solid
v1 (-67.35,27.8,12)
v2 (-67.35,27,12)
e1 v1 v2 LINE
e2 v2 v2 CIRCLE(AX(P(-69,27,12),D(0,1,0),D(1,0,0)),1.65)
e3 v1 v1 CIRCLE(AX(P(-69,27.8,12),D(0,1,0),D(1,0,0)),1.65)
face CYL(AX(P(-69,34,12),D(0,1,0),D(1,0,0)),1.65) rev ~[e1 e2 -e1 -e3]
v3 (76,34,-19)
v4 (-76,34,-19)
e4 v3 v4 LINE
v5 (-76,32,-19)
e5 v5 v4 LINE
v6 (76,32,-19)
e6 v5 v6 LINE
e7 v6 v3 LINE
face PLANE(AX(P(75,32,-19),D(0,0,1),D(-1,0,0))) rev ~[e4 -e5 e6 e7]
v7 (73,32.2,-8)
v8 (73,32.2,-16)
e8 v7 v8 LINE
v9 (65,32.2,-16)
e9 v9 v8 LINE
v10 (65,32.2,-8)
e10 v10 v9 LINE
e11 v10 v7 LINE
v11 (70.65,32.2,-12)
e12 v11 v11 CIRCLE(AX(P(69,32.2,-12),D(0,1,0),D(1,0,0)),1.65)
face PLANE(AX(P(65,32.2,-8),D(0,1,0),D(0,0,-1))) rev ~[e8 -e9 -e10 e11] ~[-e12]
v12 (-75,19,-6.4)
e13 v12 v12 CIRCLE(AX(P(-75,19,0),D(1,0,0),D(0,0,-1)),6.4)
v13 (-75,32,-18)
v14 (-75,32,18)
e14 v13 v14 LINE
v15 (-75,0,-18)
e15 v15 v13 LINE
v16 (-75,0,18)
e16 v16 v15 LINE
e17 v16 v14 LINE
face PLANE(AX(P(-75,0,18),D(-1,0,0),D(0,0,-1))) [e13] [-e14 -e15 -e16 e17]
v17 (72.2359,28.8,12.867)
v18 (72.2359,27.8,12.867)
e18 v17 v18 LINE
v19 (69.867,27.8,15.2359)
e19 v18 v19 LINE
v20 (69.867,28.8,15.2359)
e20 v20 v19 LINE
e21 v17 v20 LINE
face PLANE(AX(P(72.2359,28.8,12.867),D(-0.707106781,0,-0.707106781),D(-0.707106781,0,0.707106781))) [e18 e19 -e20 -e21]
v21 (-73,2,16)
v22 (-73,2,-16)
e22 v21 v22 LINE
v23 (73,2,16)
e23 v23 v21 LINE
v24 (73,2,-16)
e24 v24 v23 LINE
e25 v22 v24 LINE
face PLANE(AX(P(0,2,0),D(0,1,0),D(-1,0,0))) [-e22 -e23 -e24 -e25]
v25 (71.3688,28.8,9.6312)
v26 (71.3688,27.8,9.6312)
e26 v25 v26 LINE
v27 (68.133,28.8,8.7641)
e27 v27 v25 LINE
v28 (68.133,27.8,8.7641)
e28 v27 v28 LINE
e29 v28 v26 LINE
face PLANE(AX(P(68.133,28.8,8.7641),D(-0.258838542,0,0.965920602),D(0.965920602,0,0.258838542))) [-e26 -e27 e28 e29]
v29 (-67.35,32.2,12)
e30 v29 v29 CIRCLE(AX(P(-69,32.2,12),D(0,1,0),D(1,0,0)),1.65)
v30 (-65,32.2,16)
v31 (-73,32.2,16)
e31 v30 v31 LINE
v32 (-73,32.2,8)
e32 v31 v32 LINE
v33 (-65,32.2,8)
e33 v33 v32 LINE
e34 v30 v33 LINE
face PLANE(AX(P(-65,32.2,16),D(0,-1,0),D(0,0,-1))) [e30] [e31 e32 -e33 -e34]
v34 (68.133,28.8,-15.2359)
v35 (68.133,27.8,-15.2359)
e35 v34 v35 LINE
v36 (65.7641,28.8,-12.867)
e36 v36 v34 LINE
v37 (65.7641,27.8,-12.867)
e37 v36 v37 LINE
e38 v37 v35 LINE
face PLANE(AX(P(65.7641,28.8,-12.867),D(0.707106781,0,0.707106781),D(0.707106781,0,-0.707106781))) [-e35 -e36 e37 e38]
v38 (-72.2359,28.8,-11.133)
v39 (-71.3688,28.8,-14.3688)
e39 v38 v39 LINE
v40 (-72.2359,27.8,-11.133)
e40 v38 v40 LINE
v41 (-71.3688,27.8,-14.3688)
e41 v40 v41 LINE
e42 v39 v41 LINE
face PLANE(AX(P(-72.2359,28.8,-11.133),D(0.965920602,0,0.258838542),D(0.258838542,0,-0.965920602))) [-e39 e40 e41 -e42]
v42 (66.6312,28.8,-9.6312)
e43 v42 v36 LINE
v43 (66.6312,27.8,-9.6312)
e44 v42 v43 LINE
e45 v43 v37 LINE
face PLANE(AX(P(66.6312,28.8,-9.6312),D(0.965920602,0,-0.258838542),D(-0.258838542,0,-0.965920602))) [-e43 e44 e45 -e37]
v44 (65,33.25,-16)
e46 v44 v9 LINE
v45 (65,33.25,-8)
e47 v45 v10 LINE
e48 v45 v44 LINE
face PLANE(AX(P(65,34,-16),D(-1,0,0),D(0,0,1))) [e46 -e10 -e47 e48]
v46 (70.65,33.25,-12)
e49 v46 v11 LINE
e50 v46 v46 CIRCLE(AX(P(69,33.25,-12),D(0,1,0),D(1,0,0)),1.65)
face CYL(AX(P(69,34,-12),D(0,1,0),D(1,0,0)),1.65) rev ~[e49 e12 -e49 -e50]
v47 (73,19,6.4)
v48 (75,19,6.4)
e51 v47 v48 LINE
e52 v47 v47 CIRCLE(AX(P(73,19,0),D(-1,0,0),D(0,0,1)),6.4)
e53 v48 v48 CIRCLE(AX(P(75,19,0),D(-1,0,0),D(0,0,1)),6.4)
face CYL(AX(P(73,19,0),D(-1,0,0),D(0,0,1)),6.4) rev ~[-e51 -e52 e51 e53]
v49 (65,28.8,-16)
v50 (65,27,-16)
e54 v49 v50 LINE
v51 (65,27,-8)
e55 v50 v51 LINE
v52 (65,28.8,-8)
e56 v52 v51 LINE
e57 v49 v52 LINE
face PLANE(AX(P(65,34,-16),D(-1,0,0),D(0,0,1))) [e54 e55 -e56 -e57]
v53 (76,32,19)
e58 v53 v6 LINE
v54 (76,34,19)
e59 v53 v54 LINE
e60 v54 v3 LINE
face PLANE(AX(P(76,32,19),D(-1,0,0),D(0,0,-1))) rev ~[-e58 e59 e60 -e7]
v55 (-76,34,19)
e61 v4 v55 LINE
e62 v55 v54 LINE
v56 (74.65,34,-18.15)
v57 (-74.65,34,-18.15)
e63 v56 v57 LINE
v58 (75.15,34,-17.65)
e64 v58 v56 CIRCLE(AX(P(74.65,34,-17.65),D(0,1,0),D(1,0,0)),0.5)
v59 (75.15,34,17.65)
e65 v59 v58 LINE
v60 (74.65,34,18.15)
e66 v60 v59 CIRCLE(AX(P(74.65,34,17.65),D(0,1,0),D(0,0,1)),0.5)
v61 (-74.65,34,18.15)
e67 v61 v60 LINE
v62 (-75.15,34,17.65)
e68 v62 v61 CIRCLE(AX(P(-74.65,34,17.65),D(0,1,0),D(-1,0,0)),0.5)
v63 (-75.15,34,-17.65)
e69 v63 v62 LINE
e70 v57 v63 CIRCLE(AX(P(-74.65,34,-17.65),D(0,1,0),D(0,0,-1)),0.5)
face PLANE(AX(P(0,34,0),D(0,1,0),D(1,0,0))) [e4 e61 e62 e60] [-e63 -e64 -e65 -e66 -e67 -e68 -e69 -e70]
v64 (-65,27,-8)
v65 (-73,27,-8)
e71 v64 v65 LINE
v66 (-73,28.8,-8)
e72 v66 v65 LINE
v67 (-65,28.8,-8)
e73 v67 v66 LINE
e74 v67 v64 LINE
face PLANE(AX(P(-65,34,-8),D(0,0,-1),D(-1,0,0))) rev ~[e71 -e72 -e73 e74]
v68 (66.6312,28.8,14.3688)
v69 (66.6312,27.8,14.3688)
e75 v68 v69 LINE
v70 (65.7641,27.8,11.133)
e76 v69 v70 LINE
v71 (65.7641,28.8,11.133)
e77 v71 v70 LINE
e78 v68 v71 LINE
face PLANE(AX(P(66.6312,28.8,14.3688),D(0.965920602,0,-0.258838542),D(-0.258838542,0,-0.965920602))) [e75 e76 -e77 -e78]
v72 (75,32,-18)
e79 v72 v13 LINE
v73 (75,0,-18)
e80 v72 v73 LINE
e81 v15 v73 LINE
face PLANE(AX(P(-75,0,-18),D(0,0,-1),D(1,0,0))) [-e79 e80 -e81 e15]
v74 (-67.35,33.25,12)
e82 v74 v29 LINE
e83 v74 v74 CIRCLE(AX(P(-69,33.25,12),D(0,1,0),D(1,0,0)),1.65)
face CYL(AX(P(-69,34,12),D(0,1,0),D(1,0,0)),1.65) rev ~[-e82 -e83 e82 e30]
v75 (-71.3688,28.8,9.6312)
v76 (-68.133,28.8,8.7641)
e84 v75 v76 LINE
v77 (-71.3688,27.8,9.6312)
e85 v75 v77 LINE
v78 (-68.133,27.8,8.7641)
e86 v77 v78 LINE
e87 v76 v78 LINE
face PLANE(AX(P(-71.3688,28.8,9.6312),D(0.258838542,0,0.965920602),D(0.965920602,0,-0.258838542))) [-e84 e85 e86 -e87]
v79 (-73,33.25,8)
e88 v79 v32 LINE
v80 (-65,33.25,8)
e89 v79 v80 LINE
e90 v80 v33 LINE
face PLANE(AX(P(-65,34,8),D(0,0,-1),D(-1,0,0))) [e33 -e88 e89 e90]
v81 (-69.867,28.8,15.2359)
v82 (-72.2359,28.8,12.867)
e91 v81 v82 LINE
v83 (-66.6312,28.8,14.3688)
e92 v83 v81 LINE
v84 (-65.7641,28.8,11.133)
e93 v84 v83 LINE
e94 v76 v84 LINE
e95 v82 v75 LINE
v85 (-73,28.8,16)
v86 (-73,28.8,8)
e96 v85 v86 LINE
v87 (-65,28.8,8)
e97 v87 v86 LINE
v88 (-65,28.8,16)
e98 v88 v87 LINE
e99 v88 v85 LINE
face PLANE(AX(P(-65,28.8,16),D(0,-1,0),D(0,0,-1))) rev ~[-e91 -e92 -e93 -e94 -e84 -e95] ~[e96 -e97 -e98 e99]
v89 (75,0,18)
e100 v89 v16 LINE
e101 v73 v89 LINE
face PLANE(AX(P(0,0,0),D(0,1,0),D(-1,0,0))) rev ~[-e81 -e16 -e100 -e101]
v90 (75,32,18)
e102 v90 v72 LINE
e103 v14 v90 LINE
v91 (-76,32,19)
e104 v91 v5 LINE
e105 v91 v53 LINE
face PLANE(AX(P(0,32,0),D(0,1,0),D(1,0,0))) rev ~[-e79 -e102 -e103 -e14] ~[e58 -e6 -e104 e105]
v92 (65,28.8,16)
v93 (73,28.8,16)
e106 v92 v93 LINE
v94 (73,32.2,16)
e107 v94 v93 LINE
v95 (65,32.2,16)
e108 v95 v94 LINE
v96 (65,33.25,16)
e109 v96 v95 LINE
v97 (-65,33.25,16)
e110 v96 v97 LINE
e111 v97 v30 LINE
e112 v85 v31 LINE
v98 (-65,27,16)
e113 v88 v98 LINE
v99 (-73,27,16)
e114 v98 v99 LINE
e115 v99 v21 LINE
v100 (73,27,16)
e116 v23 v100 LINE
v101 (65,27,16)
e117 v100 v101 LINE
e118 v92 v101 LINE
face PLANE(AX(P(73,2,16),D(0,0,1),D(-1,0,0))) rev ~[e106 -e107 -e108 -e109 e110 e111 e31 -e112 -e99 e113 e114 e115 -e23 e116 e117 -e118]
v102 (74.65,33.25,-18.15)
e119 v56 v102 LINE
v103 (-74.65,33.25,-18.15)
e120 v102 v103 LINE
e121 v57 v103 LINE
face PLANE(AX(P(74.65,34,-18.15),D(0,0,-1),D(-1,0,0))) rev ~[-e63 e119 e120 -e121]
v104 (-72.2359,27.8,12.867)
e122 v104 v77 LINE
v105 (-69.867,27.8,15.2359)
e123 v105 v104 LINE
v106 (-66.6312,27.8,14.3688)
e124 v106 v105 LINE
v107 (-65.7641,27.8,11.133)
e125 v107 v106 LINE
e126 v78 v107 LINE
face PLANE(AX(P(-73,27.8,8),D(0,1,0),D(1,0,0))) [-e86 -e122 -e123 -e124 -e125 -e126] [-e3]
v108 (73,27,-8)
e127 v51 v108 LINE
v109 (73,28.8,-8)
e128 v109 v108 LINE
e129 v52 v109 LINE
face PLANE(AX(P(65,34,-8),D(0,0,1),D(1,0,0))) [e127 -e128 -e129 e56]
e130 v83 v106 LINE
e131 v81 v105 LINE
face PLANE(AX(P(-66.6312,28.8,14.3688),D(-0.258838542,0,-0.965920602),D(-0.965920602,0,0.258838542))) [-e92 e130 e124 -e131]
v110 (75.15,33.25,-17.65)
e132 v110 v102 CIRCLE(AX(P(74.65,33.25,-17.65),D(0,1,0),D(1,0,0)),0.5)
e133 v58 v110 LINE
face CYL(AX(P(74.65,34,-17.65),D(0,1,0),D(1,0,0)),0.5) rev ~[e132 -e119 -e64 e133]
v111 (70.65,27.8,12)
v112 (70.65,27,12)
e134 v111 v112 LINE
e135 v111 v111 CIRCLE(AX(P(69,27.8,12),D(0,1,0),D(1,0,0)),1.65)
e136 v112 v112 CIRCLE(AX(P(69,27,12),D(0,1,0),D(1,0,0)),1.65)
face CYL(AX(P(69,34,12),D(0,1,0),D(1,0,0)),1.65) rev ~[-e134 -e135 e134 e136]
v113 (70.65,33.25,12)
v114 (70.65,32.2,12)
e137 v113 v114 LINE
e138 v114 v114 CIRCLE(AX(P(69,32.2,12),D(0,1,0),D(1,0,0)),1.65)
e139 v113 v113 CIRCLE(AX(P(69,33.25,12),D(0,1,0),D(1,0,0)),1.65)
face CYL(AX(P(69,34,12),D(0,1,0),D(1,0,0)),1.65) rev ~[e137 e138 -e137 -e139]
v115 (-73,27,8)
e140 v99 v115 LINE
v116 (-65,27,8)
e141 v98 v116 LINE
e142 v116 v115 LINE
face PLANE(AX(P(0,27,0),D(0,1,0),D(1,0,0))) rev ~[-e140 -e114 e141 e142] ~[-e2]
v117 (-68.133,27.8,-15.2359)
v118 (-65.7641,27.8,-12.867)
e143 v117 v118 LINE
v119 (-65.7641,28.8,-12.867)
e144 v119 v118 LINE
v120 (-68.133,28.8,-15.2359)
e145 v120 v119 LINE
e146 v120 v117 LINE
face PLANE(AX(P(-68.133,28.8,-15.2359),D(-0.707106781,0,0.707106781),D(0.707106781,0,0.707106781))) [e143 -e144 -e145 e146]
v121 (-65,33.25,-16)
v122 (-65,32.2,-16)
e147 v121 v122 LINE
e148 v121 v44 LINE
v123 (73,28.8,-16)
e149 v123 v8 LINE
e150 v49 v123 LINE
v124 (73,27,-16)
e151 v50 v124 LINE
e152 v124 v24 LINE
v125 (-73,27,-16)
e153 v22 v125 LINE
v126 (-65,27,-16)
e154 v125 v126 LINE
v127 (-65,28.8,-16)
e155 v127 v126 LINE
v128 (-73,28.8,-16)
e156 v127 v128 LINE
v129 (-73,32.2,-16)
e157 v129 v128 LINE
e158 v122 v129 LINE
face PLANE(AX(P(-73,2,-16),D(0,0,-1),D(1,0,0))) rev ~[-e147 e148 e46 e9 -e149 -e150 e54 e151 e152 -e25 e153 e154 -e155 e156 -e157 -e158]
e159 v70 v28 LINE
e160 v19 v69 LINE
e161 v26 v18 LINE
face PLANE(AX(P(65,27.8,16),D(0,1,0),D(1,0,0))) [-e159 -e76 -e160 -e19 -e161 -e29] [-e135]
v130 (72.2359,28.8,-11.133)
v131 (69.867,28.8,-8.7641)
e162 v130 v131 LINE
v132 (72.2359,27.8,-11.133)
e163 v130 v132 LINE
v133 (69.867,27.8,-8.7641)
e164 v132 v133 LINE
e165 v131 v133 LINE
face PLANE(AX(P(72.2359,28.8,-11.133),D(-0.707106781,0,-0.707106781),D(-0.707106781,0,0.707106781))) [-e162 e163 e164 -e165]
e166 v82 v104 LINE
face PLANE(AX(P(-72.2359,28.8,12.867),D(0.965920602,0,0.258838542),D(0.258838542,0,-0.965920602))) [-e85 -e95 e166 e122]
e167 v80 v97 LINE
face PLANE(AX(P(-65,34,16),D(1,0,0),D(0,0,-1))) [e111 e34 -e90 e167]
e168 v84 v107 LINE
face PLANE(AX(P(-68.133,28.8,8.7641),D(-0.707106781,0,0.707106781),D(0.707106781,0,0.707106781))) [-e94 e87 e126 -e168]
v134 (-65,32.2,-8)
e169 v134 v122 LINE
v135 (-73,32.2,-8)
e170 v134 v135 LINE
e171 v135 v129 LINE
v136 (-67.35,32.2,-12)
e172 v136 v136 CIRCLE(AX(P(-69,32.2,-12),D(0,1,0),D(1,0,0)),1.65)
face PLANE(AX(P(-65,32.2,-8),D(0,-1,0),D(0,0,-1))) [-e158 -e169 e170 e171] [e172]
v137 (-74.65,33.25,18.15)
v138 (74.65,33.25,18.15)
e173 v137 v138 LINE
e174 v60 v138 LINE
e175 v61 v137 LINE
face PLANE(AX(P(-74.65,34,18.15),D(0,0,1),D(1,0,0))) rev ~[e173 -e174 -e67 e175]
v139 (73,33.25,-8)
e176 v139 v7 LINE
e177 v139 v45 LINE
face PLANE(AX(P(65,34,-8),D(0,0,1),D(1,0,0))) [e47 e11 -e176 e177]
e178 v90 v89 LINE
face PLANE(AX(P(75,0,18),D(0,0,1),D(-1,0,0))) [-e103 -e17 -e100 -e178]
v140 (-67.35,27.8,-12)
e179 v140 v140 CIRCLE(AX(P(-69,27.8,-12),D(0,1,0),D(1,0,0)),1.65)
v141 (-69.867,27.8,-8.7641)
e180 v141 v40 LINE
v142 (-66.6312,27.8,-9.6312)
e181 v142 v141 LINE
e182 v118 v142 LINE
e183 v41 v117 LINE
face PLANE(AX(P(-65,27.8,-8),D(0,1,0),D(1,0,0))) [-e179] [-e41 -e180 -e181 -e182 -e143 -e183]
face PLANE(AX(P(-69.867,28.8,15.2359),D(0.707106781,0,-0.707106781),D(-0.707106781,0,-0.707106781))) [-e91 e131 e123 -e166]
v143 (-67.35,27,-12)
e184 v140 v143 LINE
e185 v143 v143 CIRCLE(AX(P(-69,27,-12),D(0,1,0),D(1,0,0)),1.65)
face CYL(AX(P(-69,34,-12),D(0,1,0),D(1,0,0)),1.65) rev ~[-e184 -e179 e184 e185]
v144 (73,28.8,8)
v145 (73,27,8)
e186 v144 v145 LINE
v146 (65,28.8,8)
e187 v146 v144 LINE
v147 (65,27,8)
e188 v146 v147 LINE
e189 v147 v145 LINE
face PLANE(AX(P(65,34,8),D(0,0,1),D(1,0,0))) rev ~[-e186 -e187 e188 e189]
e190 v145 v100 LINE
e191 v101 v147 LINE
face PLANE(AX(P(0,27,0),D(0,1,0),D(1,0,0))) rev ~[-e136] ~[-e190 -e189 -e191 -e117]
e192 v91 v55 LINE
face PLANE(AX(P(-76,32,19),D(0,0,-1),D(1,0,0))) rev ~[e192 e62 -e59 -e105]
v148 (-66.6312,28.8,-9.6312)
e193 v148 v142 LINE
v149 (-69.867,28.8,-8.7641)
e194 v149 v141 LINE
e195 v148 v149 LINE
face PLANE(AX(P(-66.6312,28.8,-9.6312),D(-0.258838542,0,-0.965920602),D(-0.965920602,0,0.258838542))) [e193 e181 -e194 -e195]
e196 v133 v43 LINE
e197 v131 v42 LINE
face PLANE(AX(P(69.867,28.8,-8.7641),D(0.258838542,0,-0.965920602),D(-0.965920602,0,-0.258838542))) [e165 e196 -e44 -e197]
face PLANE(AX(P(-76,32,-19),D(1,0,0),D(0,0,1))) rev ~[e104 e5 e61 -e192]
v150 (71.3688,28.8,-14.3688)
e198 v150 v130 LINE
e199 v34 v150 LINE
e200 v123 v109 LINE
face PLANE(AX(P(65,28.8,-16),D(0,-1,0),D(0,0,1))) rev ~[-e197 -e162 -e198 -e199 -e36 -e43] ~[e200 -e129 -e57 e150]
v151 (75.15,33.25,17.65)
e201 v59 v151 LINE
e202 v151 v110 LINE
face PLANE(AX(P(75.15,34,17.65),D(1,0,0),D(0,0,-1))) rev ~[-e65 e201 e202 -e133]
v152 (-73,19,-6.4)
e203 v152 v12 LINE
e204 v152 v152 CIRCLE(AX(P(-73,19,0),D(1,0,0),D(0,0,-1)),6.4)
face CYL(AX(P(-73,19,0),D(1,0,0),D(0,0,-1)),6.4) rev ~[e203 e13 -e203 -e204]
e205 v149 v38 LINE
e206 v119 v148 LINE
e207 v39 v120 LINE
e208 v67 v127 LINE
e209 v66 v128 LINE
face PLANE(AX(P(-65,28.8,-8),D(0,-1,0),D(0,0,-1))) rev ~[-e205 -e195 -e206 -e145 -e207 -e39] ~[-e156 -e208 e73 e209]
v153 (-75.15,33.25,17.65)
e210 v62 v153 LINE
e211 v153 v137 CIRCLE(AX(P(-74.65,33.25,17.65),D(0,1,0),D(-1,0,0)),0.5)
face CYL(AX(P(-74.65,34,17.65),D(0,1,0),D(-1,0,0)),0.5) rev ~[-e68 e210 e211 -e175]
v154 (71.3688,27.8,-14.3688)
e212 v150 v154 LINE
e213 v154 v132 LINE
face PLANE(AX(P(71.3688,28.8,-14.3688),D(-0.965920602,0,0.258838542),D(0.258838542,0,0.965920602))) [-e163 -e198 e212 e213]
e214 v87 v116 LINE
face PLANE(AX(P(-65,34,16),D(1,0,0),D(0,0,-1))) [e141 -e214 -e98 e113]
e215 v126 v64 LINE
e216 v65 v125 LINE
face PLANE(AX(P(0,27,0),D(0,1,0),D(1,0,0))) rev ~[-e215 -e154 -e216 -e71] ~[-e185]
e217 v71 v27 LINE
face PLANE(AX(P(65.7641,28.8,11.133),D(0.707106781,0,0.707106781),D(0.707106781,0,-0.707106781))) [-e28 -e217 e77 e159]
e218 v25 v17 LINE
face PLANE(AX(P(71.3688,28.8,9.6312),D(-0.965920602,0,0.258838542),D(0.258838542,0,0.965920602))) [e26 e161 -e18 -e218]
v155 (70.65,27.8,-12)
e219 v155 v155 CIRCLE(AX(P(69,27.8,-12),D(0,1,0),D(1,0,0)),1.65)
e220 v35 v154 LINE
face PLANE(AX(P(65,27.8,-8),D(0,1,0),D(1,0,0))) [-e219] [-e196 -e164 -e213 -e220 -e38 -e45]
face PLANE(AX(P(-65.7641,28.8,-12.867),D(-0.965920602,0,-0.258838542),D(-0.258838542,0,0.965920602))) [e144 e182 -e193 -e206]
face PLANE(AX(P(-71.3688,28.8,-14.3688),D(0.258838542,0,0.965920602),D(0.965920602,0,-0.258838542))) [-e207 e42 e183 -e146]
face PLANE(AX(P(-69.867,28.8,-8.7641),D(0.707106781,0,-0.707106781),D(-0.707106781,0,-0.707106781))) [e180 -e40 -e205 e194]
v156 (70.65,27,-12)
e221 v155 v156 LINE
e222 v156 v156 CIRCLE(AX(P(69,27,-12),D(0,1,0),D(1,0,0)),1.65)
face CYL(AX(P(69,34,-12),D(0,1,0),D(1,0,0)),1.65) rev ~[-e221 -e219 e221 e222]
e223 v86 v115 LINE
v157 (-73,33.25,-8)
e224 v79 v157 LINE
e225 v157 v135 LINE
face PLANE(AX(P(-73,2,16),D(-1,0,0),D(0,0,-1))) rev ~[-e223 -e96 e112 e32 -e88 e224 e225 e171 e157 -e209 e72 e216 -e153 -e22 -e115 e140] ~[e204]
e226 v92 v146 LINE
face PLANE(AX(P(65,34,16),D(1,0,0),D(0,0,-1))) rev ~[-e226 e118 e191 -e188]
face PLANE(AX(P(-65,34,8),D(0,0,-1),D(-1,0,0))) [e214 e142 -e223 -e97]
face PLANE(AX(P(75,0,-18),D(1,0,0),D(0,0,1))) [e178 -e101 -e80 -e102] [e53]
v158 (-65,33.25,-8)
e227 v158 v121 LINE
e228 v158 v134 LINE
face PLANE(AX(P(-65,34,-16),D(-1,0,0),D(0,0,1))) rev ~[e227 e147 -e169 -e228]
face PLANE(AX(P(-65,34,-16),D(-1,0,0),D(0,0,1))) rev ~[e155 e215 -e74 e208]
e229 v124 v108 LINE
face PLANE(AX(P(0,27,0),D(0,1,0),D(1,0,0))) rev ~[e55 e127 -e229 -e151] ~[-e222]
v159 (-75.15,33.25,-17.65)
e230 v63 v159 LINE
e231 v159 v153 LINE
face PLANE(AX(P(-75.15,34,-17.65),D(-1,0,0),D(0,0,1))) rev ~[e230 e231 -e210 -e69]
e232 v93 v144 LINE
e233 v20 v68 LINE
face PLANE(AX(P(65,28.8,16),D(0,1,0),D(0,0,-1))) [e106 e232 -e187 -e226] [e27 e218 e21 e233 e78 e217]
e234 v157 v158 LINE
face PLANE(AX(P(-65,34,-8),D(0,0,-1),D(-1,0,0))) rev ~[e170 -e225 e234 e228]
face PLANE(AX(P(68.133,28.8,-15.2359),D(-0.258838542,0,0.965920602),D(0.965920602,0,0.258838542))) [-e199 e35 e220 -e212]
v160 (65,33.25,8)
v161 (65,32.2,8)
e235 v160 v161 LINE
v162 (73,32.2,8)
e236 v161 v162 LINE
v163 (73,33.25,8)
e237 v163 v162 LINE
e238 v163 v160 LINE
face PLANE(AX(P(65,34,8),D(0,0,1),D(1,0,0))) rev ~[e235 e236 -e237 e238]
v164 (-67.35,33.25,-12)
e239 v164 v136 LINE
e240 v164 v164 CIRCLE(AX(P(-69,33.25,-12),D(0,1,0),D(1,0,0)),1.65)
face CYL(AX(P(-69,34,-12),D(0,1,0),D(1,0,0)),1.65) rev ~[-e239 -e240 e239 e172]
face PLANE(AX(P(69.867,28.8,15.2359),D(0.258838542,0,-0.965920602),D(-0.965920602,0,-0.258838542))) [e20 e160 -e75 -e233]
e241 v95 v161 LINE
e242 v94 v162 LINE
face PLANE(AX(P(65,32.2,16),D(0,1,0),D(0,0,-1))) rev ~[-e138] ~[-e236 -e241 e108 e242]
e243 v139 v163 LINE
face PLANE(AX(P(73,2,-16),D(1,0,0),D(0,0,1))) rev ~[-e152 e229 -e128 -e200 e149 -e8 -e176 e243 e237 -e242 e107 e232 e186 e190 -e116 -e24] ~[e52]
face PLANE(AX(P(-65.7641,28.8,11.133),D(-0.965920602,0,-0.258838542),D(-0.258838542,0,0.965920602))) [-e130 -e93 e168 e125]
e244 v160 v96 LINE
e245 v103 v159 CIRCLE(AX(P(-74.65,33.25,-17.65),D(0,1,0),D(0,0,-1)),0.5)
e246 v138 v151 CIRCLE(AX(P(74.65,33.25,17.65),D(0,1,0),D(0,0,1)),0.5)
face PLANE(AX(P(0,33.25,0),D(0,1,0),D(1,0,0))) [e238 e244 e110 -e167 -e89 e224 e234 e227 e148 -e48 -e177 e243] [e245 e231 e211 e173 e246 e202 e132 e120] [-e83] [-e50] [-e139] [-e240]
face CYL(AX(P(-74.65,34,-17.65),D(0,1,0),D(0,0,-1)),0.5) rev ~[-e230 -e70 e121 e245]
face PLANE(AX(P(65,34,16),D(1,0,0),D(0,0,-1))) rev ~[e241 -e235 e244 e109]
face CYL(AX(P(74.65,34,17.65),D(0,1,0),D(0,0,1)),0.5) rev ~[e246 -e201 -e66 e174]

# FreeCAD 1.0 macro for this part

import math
import FreeCAD as App
import Part
import Sketcher
Q = App.Units.Quantity

doc = App.newDocument("Part")
body = doc.addObject("PartDesign::Body", "Body")

sketch1 = body.newObject("Sketcher::SketchObject", "Sketch")
sketch1.AttachmentSupport = (doc.getObject("XZ_Plane"), [""])
sketch1.MapMode = "FlatFace"
sketch1.addGeometry(Part.LineSegment(App.Vector(75, -18, 0), App.Vector(-75, -18, 0)), False)
sketch1.addGeometry(Part.LineSegment(App.Vector(-75, -18, 0), App.Vector(-75, 18, 0)), False)
sketch1.addGeometry(Part.LineSegment(App.Vector(-75, 18, 0), App.Vector(75, 18, 0)), False)
sketch1.addGeometry(Part.LineSegment(App.Vector(75, 18, 0), App.Vector(75, -18, 0)), False)
sketch1.addConstraint(Sketcher.Constraint("Coincident", 0, 2, 1, 1))
sketch1.addConstraint(Sketcher.Constraint("Coincident", 1, 2, 2, 1))
sketch1.addConstraint(Sketcher.Constraint("Coincident", 2, 2, 3, 1))
sketch1.addConstraint(Sketcher.Constraint("Coincident", 3, 2, 0, 1))
sketch1.addConstraint(Sketcher.Constraint("Horizontal", 0))
sketch1.addConstraint(Sketcher.Constraint("Vertical", 1))
sketch1.addConstraint(Sketcher.Constraint("Horizontal", 2))
sketch1.addConstraint(Sketcher.Constraint("Vertical", 3))
sketch1.addConstraint(Sketcher.Constraint("Symmetric", 0, 2, 2, 2, -1, 1))
sketch1.addConstraint(Sketcher.Constraint("DistanceX", 0, 2, 0, 1, 150.0))
sketch1.addConstraint(Sketcher.Constraint("DistanceY", 1, 1, 1, 2, 36.0))
pad1 = body.newObject("PartDesign::Pad", "Pad")
pad1.Profile = sketch1
pad1.Length = 2
pad1.Reversed = True

sketch2 = body.newObject("Sketcher::SketchObject", "Sketch001")
sketch2.AttachmentSupport = (doc.getObject("XZ_Plane"), [""])
sketch2.MapMode = "FlatFace"
sketch2.AttachmentOffset = App.Placement(App.Vector(0, 0, -2), App.Rotation())
sketch2.addGeometry(Part.LineSegment(App.Vector(75, 18, 0), App.Vector(75, -18, 0)), False)
sketch2.addGeometry(Part.LineSegment(App.Vector(75, -18, 0), App.Vector(-75, -18, 0)), False)
sketch2.addGeometry(Part.LineSegment(App.Vector(-75, -18, 0), App.Vector(-75, 18, 0)), False)
sketch2.addGeometry(Part.LineSegment(App.Vector(-75, 18, 0), App.Vector(75, 18, 0)), False)
sketch2.addGeometry(Part.LineSegment(App.Vector(73, -16, 0), App.Vector(73, 16, 0)), False)
sketch2.addGeometry(Part.LineSegment(App.Vector(73, 16, 0), App.Vector(-73, 16, 0)), False)
sketch2.addGeometry(Part.LineSegment(App.Vector(-73, 16, 0), App.Vector(-73, -16, 0)), False)
sketch2.addGeometry(Part.LineSegment(App.Vector(-73, -16, 0), App.Vector(73, -16, 0)), False)
sketch2.addConstraint(Sketcher.Constraint("Coincident", 0, 2, 1, 1))
sketch2.addConstraint(Sketcher.Constraint("Coincident", 1, 2, 2, 1))
sketch2.addConstraint(Sketcher.Constraint("Coincident", 2, 2, 3, 1))
sketch2.addConstraint(Sketcher.Constraint("Coincident", 3, 2, 0, 1))
sketch2.addConstraint(Sketcher.Constraint("Coincident", 4, 2, 5, 1))
sketch2.addConstraint(Sketcher.Constraint("Coincident", 5, 2, 6, 1))
sketch2.addConstraint(Sketcher.Constraint("Coincident", 6, 2, 7, 1))
sketch2.addConstraint(Sketcher.Constraint("Coincident", 7, 2, 4, 1))
sketch2.addConstraint(Sketcher.Constraint("Vertical", 0))
sketch2.addConstraint(Sketcher.Constraint("Horizontal", 1))
sketch2.addConstraint(Sketcher.Constraint("Vertical", 2))
sketch2.addConstraint(Sketcher.Constraint("Horizontal", 3))
sketch2.addConstraint(Sketcher.Constraint("Vertical", 4))
sketch2.addConstraint(Sketcher.Constraint("Horizontal", 5))
sketch2.addConstraint(Sketcher.Constraint("Vertical", 6))
sketch2.addConstraint(Sketcher.Constraint("Horizontal", 7))
sketch2.addConstraint(Sketcher.Constraint("Symmetric", 0, 2, 2, 2, -1, 1))
sketch2.addConstraint(Sketcher.Constraint("Symmetric", 4, 2, 6, 2, -1, 1))
sketch2.addConstraint(Sketcher.Constraint("DistanceX", 1, 2, 1, 1, 150.0))
sketch2.addConstraint(Sketcher.Constraint("DistanceX", 5, 2, 5, 1, 146.0))
sketch2.addConstraint(Sketcher.Constraint("DistanceY", 0, 2, 0, 1, 36.0))
sketch2.addConstraint(Sketcher.Constraint("DistanceY", 4, 1, 4, 2, 32.0))
pad2 = body.newObject("PartDesign::Pad", "Pad001")
pad2.Profile = sketch2
pad2.Length = 30
pad2.Reversed = True

sketch3 = body.newObject("Sketcher::SketchObject", "Sketch002")
sketch3.AttachmentSupport = (doc.getObject("YZ_Plane"), [""])
sketch3.MapMode = "FlatFace"
sketch3.AttachmentOffset = App.Placement(App.Vector(0, 0, -73), App.Rotation())
sketch3.addGeometry(Part.Circle(App.Vector(19, 0, 0), App.Vector(0, 0, 1), 6.4), False)
sketch3.addConstraint(Sketcher.Constraint("PointOnObject", 0, 3, -1))
sketch3.addConstraint(Sketcher.Constraint("Diameter", 0, 12.8))
sketch3.addConstraint(Sketcher.Constraint("DistanceX", -1, 1, 0, 3, 19.0))
pocket1 = body.newObject("PartDesign::Pocket", "Pocket")
pocket1.Profile = sketch3
pocket1.Length = 30

sketch4 = body.newObject("Sketcher::SketchObject", "Sketch003")
sketch4.AttachmentSupport = (doc.getObject("YZ_Plane"), [""])
sketch4.MapMode = "FlatFace"
sketch4.AttachmentOffset = App.Placement(App.Vector(0, 0, 73), App.Rotation())
sketch4.addGeometry(Part.Circle(App.Vector(19, 0, 0), App.Vector(0, 0, 1), 6.4), False)
sketch4.addConstraint(Sketcher.Constraint("PointOnObject", 0, 3, -1))
sketch4.addConstraint(Sketcher.Constraint("Diameter", 0, 12.8))
sketch4.addConstraint(Sketcher.Constraint("DistanceX", -1, 1, 0, 3, 19.0))
pocket2 = body.newObject("PartDesign::Pocket", "Pocket001")
pocket2.Profile = sketch4
pocket2.Length = 30
pocket2.Reversed = True

sketch5 = body.newObject("Sketcher::SketchObject", "Sketch004")
sketch5.AttachmentSupport = (doc.getObject("XZ_Plane"), [""])
sketch5.MapMode = "FlatFace"
sketch5.AttachmentOffset = App.Placement(App.Vector(0, 0, -32), App.Rotation())
sketch5.addGeometry(Part.LineSegment(App.Vector(-76, -19, 0), App.Vector(-76, 19, 0)), False)
sketch5.addGeometry(Part.LineSegment(App.Vector(-76, 19, 0), App.Vector(76, 19, 0)), False)
sketch5.addGeometry(Part.LineSegment(App.Vector(76, 19, 0), App.Vector(76, -19, 0)), False)
sketch5.addGeometry(Part.LineSegment(App.Vector(76, -19, 0), App.Vector(-76, -19, 0)), False)
sketch5.addGeometry(Part.LineSegment(App.Vector(73, -16, 0), App.Vector(73, 16, 0)), False)
sketch5.addGeometry(Part.LineSegment(App.Vector(73, 16, 0), App.Vector(-73, 16, 0)), False)
sketch5.addGeometry(Part.LineSegment(App.Vector(-73, 16, 0), App.Vector(-73, -16, 0)), False)
sketch5.addGeometry(Part.LineSegment(App.Vector(-73, -16, 0), App.Vector(73, -16, 0)), False)
sketch5.addConstraint(Sketcher.Constraint("Coincident", 0, 2, 1, 1))
sketch5.addConstraint(Sketcher.Constraint("Coincident", 1, 2, 2, 1))
sketch5.addConstraint(Sketcher.Constraint("Coincident", 2, 2, 3, 1))
sketch5.addConstraint(Sketcher.Constraint("Coincident", 3, 2, 0, 1))
sketch5.addConstraint(Sketcher.Constraint("Coincident", 4, 2, 5, 1))
sketch5.addConstraint(Sketcher.Constraint("Coincident", 5, 2, 6, 1))
sketch5.addConstraint(Sketcher.Constraint("Coincident", 6, 2, 7, 1))
sketch5.addConstraint(Sketcher.Constraint("Coincident", 7, 2, 4, 1))
sketch5.addConstraint(Sketcher.Constraint("Vertical", 0))
sketch5.addConstraint(Sketcher.Constraint("Horizontal", 1))
sketch5.addConstraint(Sketcher.Constraint("Vertical", 2))
sketch5.addConstraint(Sketcher.Constraint("Horizontal", 3))
sketch5.addConstraint(Sketcher.Constraint("Vertical", 4))
sketch5.addConstraint(Sketcher.Constraint("Horizontal", 5))
sketch5.addConstraint(Sketcher.Constraint("Vertical", 6))
sketch5.addConstraint(Sketcher.Constraint("Horizontal", 7))
sketch5.addConstraint(Sketcher.Constraint("Symmetric", 0, 2, 2, 2, -1, 1))
sketch5.addConstraint(Sketcher.Constraint("Symmetric", 4, 2, 6, 2, -1, 1))
sketch5.addConstraint(Sketcher.Constraint("DistanceX", 1, 1, 1, 2, 152.0))
sketch5.addConstraint(Sketcher.Constraint("DistanceX", 5, 2, 5, 1, 146.0))
sketch5.addConstraint(Sketcher.Constraint("DistanceY", 0, 1, 0, 2, 38.0))
sketch5.addConstraint(Sketcher.Constraint("DistanceY", 4, 1, 4, 2, 32.0))
pad3 = body.newObject("PartDesign::Pad", "Pad002")
pad3.Profile = sketch5
pad3.Length = 2
pad3.Reversed = True

sketch6 = body.newObject("Sketcher::SketchObject", "Sketch005")
sketch6.AttachmentSupport = (doc.getObject("XZ_Plane"), [""])
sketch6.MapMode = "FlatFace"
sketch6.AttachmentOffset = App.Placement(App.Vector(0, 0, -34), App.Rotation())
sketch6.addGeometry(Part.LineSegment(App.Vector(73, -8, 0), App.Vector(73, -16, 0)), False)
sketch6.addGeometry(Part.LineSegment(App.Vector(73, -16, 0), App.Vector(65, -16, 0)), False)
sketch6.addGeometry(Part.LineSegment(App.Vector(65, -16, 0), App.Vector(65, -8, 0)), False)
sketch6.addGeometry(Part.LineSegment(App.Vector(65, -8, 0), App.Vector(73, -8, 0)), False)
sketch6.addGeometry(Part.LineSegment(App.Vector(73, 16, 0), App.Vector(73, 8, 0)), False)
sketch6.addGeometry(Part.LineSegment(App.Vector(73, 8, 0), App.Vector(65, 8, 0)), False)
sketch6.addGeometry(Part.LineSegment(App.Vector(65, 8, 0), App.Vector(65, 16, 0)), False)
sketch6.addGeometry(Part.LineSegment(App.Vector(65, 16, 0), App.Vector(73, 16, 0)), False)
sketch6.addGeometry(Part.LineSegment(App.Vector(-65, -8, 0), App.Vector(-65, -16, 0)), False)
sketch6.addGeometry(Part.LineSegment(App.Vector(-65, -16, 0), App.Vector(-73, -16, 0)), False)
sketch6.addGeometry(Part.LineSegment(App.Vector(-73, -16, 0), App.Vector(-73, -8, 0)), False)
sketch6.addGeometry(Part.LineSegment(App.Vector(-73, -8, 0), App.Vector(-65, -8, 0)), False)
sketch6.addGeometry(Part.LineSegment(App.Vector(-73, 16, 0), App.Vector(-65, 16, 0)), False)
sketch6.addGeometry(Part.LineSegment(App.Vector(-65, 16, 0), App.Vector(-65, 8, 0)), False)
sketch6.addGeometry(Part.LineSegment(App.Vector(-65, 8, 0), App.Vector(-73, 8, 0)), False)
sketch6.addGeometry(Part.LineSegment(App.Vector(-73, 8, 0), App.Vector(-73, 16, 0)), False)
sketch6.addConstraint(Sketcher.Constraint("Coincident", 0, 2, 1, 1))
sketch6.addConstraint(Sketcher.Constraint("Coincident", 1, 2, 2, 1))
sketch6.addConstraint(Sketcher.Constraint("Coincident", 2, 2, 3, 1))
sketch6.addConstraint(Sketcher.Constraint("Coincident", 3, 2, 0, 1))
sketch6.addConstraint(Sketcher.Constraint("Coincident", 4, 2, 5, 1))
sketch6.addConstraint(Sketcher.Constraint("Coincident", 5, 2, 6, 1))
sketch6.addConstraint(Sketcher.Constraint("Coincident", 6, 2, 7, 1))
sketch6.addConstraint(Sketcher.Constraint("Coincident", 7, 2, 4, 1))
sketch6.addConstraint(Sketcher.Constraint("Coincident", 8, 2, 9, 1))
sketch6.addConstraint(Sketcher.Constraint("Coincident", 9, 2, 10, 1))
sketch6.addConstraint(Sketcher.Constraint("Coincident", 10, 2, 11, 1))
sketch6.addConstraint(Sketcher.Constraint("Coincident", 11, 2, 8, 1))
sketch6.addConstraint(Sketcher.Constraint("Coincident", 12, 2, 13, 1))
sketch6.addConstraint(Sketcher.Constraint("Coincident", 13, 2, 14, 1))
sketch6.addConstraint(Sketcher.Constraint("Coincident", 14, 2, 15, 1))
sketch6.addConstraint(Sketcher.Constraint("Coincident", 15, 2, 12, 1))
sketch6.addConstraint(Sketcher.Constraint("Vertical", 0))
sketch6.addConstraint(Sketcher.Constraint("Horizontal", 1))
sketch6.addConstraint(Sketcher.Constraint("Vertical", 2))
sketch6.addConstraint(Sketcher.Constraint("Horizontal", 3))
sketch6.addConstraint(Sketcher.Constraint("Vertical", 4))
sketch6.addConstraint(Sketcher.Constraint("Horizontal", 5))
sketch6.addConstraint(Sketcher.Constraint("Vertical", 6))
sketch6.addConstraint(Sketcher.Constraint("Horizontal", 7))
sketch6.addConstraint(Sketcher.Constraint("Vertical", 8))
sketch6.addConstraint(Sketcher.Constraint("Horizontal", 9))
sketch6.addConstraint(Sketcher.Constraint("Vertical", 10))
sketch6.addConstraint(Sketcher.Constraint("Horizontal", 11))
sketch6.addConstraint(Sketcher.Constraint("Horizontal", 12))
sketch6.addConstraint(Sketcher.Constraint("Vertical", 13))
sketch6.addConstraint(Sketcher.Constraint("Horizontal", 14))
sketch6.addConstraint(Sketcher.Constraint("Vertical", 15))
sketch6.addConstraint(Sketcher.Constraint("Symmetric", 6, 2, 8, 2, -1, 1))
sketch6.addConstraint(Sketcher.Constraint("Symmetric", 4, 2, 10, 2, -1, 1))
sketch6.addConstraint(Sketcher.Constraint("Symmetric", 1, 2, 12, 2, -1, 1))
sketch6.addConstraint(Sketcher.Constraint("Symmetric", 3, 2, 14, 2, -1, 1))
sketch6.addConstraint(Sketcher.Constraint("Symmetric", 1, 2, 8, 2, -2))
sketch6.addConstraint(Sketcher.Constraint("Symmetric", 3, 2, 10, 2, -2))
sketch6.addConstraint(Sketcher.Constraint("Equal", 14, 0))
sketch6.addConstraint(Sketcher.Constraint("DistanceX", 1, 2, 1, 1, 8.0))
sketch6.addConstraint(Sketcher.Constraint("DistanceY", 2, 2, -1, 1, 8.0))
sketch6.addConstraint(Sketcher.Constraint("DistanceX", -1, 1, 0, 2, 73.0))
pad4 = body.newObject("PartDesign::Pad", "Pad003")
pad4.Profile = sketch6
pad4.Length = 7

sketch7 = body.newObject("Sketcher::SketchObject", "Sketch006")
sketch7.AttachmentSupport = (doc.getObject("YZ_Plane"), [""])
sketch7.MapMode = "FlatFace"
sketch7.AttachmentOffset = App.Placement(App.Vector(0, 0, -65), App.Rotation())
sketch7.addGeometry(Part.LineSegment(App.Vector(32.2, -16, 0), App.Vector(32.2, -8, 0)), False)
sketch7.addGeometry(Part.LineSegment(App.Vector(32.2, -8, 0), App.Vector(28.8, -8, 0)), False)
sketch7.addGeometry(Part.LineSegment(App.Vector(28.8, -8, 0), App.Vector(28.8, -16, 0)), False)
sketch7.addGeometry(Part.LineSegment(App.Vector(28.8, -16, 0), App.Vector(32.2, -16, 0)), False)
sketch7.addGeometry(Part.LineSegment(App.Vector(32.2, 8, 0), App.Vector(32.2, 16, 0)), False)
sketch7.addGeometry(Part.LineSegment(App.Vector(32.2, 16, 0), App.Vector(28.8, 16, 0)), False)
sketch7.addGeometry(Part.LineSegment(App.Vector(28.8, 16, 0), App.Vector(28.8, 8, 0)), False)
sketch7.addGeometry(Part.LineSegment(App.Vector(28.8, 8, 0), App.Vector(32.2, 8, 0)), False)
sketch7.addConstraint(Sketcher.Constraint("Coincident", 0, 2, 1, 1))
sketch7.addConstraint(Sketcher.Constraint("Coincident", 1, 2, 2, 1))
sketch7.addConstraint(Sketcher.Constraint("Coincident", 2, 2, 3, 1))
sketch7.addConstraint(Sketcher.Constraint("Coincident", 3, 2, 0, 1))
sketch7.addConstraint(Sketcher.Constraint("Coincident", 4, 2, 5, 1))
sketch7.addConstraint(Sketcher.Constraint("Coincident", 5, 2, 6, 1))
sketch7.addConstraint(Sketcher.Constraint("Coincident", 6, 2, 7, 1))
sketch7.addConstraint(Sketcher.Constraint("Coincident", 7, 2, 4, 1))
sketch7.addConstraint(Sketcher.Constraint("Vertical", 0))
sketch7.addConstraint(Sketcher.Constraint("Horizontal", 1))
sketch7.addConstraint(Sketcher.Constraint("Vertical", 2))
sketch7.addConstraint(Sketcher.Constraint("Horizontal", 3))
sketch7.addConstraint(Sketcher.Constraint("Vertical", 4))
sketch7.addConstraint(Sketcher.Constraint("Horizontal", 5))
sketch7.addConstraint(Sketcher.Constraint("Vertical", 6))
sketch7.addConstraint(Sketcher.Constraint("Horizontal", 7))
sketch7.addConstraint(Sketcher.Constraint("Symmetric", 3, 2, 4, 2, -1))
sketch7.addConstraint(Sketcher.Constraint("Symmetric", 1, 2, 6, 2, -1))
sketch7.addConstraint(Sketcher.Constraint("DistanceY", 0, 1, 0, 2, 8.0))
sketch7.addConstraint(Sketcher.Constraint("DistanceY", 0, 2, -1, 1, 8.0))
sketch7.addConstraint(Sketcher.Constraint("DistanceX", 1, 2, 1, 1, 3.4))
sketch7.addConstraint(Sketcher.Constraint("DistanceX", -1, 1, 0, 2, 32.2))
pocket3 = body.newObject("PartDesign::Pocket", "Pocket002")
pocket3.Profile = sketch7
pocket3.Length = 8

sketch8 = body.newObject("Sketcher::SketchObject", "Sketch007")
sketch8.AttachmentSupport = (doc.getObject("YZ_Plane"), [""])
sketch8.MapMode = "FlatFace"
sketch8.AttachmentOffset = App.Placement(App.Vector(0, 0, 65), App.Rotation())
sketch8.addGeometry(Part.LineSegment(App.Vector(32.2, -8, 0), App.Vector(32.2, -16, 0)), False)
sketch8.addGeometry(Part.LineSegment(App.Vector(32.2, -16, 0), App.Vector(28.8, -16, 0)), False)
sketch8.addGeometry(Part.LineSegment(App.Vector(28.8, -16, 0), App.Vector(28.8, -8, 0)), False)
sketch8.addGeometry(Part.LineSegment(App.Vector(28.8, -8, 0), App.Vector(32.2, -8, 0)), False)
sketch8.addGeometry(Part.LineSegment(App.Vector(28.8, 8, 0), App.Vector(28.8, 16, 0)), False)
sketch8.addGeometry(Part.LineSegment(App.Vector(28.8, 16, 0), App.Vector(32.2, 16, 0)), False)
sketch8.addGeometry(Part.LineSegment(App.Vector(32.2, 16, 0), App.Vector(32.2, 8, 0)), False)
sketch8.addGeometry(Part.LineSegment(App.Vector(32.2, 8, 0), App.Vector(28.8, 8, 0)), False)
sketch8.addConstraint(Sketcher.Constraint("Coincident", 0, 2, 1, 1))
sketch8.addConstraint(Sketcher.Constraint("Coincident", 1, 2, 2, 1))
sketch8.addConstraint(Sketcher.Constraint("Coincident", 2, 2, 3, 1))
sketch8.addConstraint(Sketcher.Constraint("Coincident", 3, 2, 0, 1))
sketch8.addConstraint(Sketcher.Constraint("Coincident", 4, 2, 5, 1))
sketch8.addConstraint(Sketcher.Constraint("Coincident", 5, 2, 6, 1))
sketch8.addConstraint(Sketcher.Constraint("Coincident", 6, 2, 7, 1))
sketch8.addConstraint(Sketcher.Constraint("Coincident", 7, 2, 4, 1))
sketch8.addConstraint(Sketcher.Constraint("Vertical", 0))
sketch8.addConstraint(Sketcher.Constraint("Horizontal", 1))
sketch8.addConstraint(Sketcher.Constraint("Vertical", 2))
sketch8.addConstraint(Sketcher.Constraint("Horizontal", 3))
sketch8.addConstraint(Sketcher.Constraint("Vertical", 4))
sketch8.addConstraint(Sketcher.Constraint("Horizontal", 5))
sketch8.addConstraint(Sketcher.Constraint("Vertical", 6))
sketch8.addConstraint(Sketcher.Constraint("Horizontal", 7))
sketch8.addConstraint(Sketcher.Constraint("Symmetric", 1, 2, 4, 2, -1))
sketch8.addConstraint(Sketcher.Constraint("Symmetric", 3, 2, 6, 2, -1))
sketch8.addConstraint(Sketcher.Constraint("DistanceY", 0, 2, 0, 1, 8.0))
sketch8.addConstraint(Sketcher.Constraint("DistanceY", 2, 2, -1, 1, 8.0))
sketch8.addConstraint(Sketcher.Constraint("DistanceX", 1, 2, 1, 1, 3.4))
sketch8.addConstraint(Sketcher.Constraint("DistanceX", -1, 1, 0, 2, 32.2))
pocket4 = body.newObject("PartDesign::Pocket", "Pocket003")
pocket4.Profile = sketch8
pocket4.Length = 8
pocket4.Reversed = True

sketch9 = body.newObject("Sketcher::SketchObject", "Sketch008")
sketch9.AttachmentSupport = (doc.getObject("XZ_Plane"), [""])
sketch9.MapMode = "FlatFace"
sketch9.AttachmentOffset = App.Placement(App.Vector(0, 0, -28.8), App.Rotation())
sketch9.addGeometry(Part.LineSegment(App.Vector(72.2359, 12.867, 0), App.Vector(71.3688, 9.6312, 0)), False)
sketch9.addGeometry(Part.LineSegment(App.Vector(71.3688, 9.6312, 0), App.Vector(68.133, 8.7641, 0)), False)
sketch9.addGeometry(Part.LineSegment(App.Vector(68.133, 8.7641, 0), App.Vector(65.7641, 11.133, 0)), False)
sketch9.addGeometry(Part.LineSegment(App.Vector(65.7641, 11.133, 0), App.Vector(66.6312, 14.3688, 0)), False)
sketch9.addGeometry(Part.LineSegment(App.Vector(66.6312, 14.3688, 0), App.Vector(69.867, 15.2359, 0)), False)
sketch9.addGeometry(Part.LineSegment(App.Vector(69.867, 15.2359, 0), App.Vector(72.2359, 12.867, 0)), False)
sketch9.addConstraint(Sketcher.Constraint("Coincident", 0, 2, 1, 1))
sketch9.addConstraint(Sketcher.Constraint("Coincident", 1, 2, 2, 1))
sketch9.addConstraint(Sketcher.Constraint("Coincident", 2, 2, 3, 1))
sketch9.addConstraint(Sketcher.Constraint("Coincident", 3, 2, 4, 1))
sketch9.addConstraint(Sketcher.Constraint("Coincident", 4, 2, 5, 1))
sketch9.addConstraint(Sketcher.Constraint("Coincident", 5, 2, 0, 1))
sketch9.addConstraint(Sketcher.Constraint("Parallel", 0, 3))
sketch9.addConstraint(Sketcher.Constraint("Parallel", 1, 4))
sketch9.addConstraint(Sketcher.Constraint("Parallel", 2, 5))
sketch9.addConstraint(Sketcher.Constraint("Equal", 0, 1))
sketch9.addConstraint(Sketcher.Constraint("Equal", 1, 2))
sketch9.addConstraint(Sketcher.Constraint("Equal", 2, 3))
sketch9.addConstraint(Sketcher.Constraint("Angle", 0, Q("-105.0012 deg")))
sketch9.addConstraint(Sketcher.Constraint("Angle", 1, Q("-164.9988 deg")))
sketch9.addConstraint(Sketcher.Constraint("Angle", 2, Q("135 deg")))
sketch9.addConstraint(Sketcher.Constraint("Distance", 0, 3.35))
sketch9.addConstraint(Sketcher.Constraint("DistanceX", -1, 1, 1, 2, 68.133))
sketch9.addConstraint(Sketcher.Constraint("DistanceY", -1, 1, 1, 2, 8.764))
pocket5 = body.newObject("PartDesign::Pocket", "Pocket004")
pocket5.Profile = sketch9
pocket5.Length = 1
pocket5.Reversed = True

sketch10 = body.newObject("Sketcher::SketchObject", "Sketch009")
sketch10.AttachmentSupport = (doc.getObject("XZ_Plane"), [""])
sketch10.MapMode = "FlatFace"
sketch10.AttachmentOffset = App.Placement(App.Vector(0, 0, -28.8), App.Rotation())
sketch10.addGeometry(Part.LineSegment(App.Vector(72.2359, -11.133, 0), App.Vector(71.3688, -14.3688, 0)), False)
sketch10.addGeometry(Part.LineSegment(App.Vector(71.3688, -14.3688, 0), App.Vector(68.133, -15.2359, 0)), False)
sketch10.addGeometry(Part.LineSegment(App.Vector(68.133, -15.2359, 0), App.Vector(65.7641, -12.867, 0)), False)
sketch10.addGeometry(Part.LineSegment(App.Vector(65.7641, -12.867, 0), App.Vector(66.6312, -9.6312, 0)), False)
sketch10.addGeometry(Part.LineSegment(App.Vector(66.6312, -9.6312, 0), App.Vector(69.867, -8.7641, 0)), False)
sketch10.addGeometry(Part.LineSegment(App.Vector(69.867, -8.7641, 0), App.Vector(72.2359, -11.133, 0)), False)
sketch10.addConstraint(Sketcher.Constraint("Coincident", 0, 2, 1, 1))
sketch10.addConstraint(Sketcher.Constraint("Coincident", 1, 2, 2, 1))
sketch10.addConstraint(Sketcher.Constraint("Coincident", 2, 2, 3, 1))
sketch10.addConstraint(Sketcher.Constraint("Coincident", 3, 2, 4, 1))
sketch10.addConstraint(Sketcher.Constraint("Coincident", 4, 2, 5, 1))
sketch10.addConstraint(Sketcher.Constraint("Coincident", 5, 2, 0, 1))
sketch10.addConstraint(Sketcher.Constraint("Parallel", 0, 3))
sketch10.addConstraint(Sketcher.Constraint("Parallel", 1, 4))
sketch10.addConstraint(Sketcher.Constraint("Parallel", 2, 5))
sketch10.addConstraint(Sketcher.Constraint("Equal", 0, 1))
sketch10.addConstraint(Sketcher.Constraint("Equal", 1, 2))
sketch10.addConstraint(Sketcher.Constraint("Equal", 2, 3))
sketch10.addConstraint(Sketcher.Constraint("Angle", 0, Q("-105.0012 deg")))
sketch10.addConstraint(Sketcher.Constraint("Angle", 1, Q("-164.9988 deg")))
sketch10.addConstraint(Sketcher.Constraint("Angle", 2, Q("135 deg")))
sketch10.addConstraint(Sketcher.Constraint("Distance", 0, 3.35))
sketch10.addConstraint(Sketcher.Constraint("DistanceX", -1, 1, 1, 2, 68.133))
sketch10.addConstraint(Sketcher.Constraint("DistanceY", 1, 2, -1, 1, 15.236))
pocket6 = body.newObject("PartDesign::Pocket", "Pocket005")
pocket6.Profile = sketch10
pocket6.Length = 1
pocket6.Reversed = True

sketch11 = body.newObject("Sketcher::SketchObject", "Sketch010")
sketch11.AttachmentSupport = (doc.getObject("XZ_Plane"), [""])
sketch11.MapMode = "FlatFace"
sketch11.AttachmentOffset = App.Placement(App.Vector(0, 0, -28.8), App.Rotation())
sketch11.addGeometry(Part.LineSegment(App.Vector(-66.6312, -9.6312, 0), App.Vector(-65.7641, -12.867, 0)), False)
sketch11.addGeometry(Part.LineSegment(App.Vector(-65.7641, -12.867, 0), App.Vector(-68.133, -15.2359, 0)), False)
sketch11.addGeometry(Part.LineSegment(App.Vector(-68.133, -15.2359, 0), App.Vector(-71.3688, -14.3688, 0)), False)
sketch11.addGeometry(Part.LineSegment(App.Vector(-71.3688, -14.3688, 0), App.Vector(-72.2359, -11.133, 0)), False)
sketch11.addGeometry(Part.LineSegment(App.Vector(-72.2359, -11.133, 0), App.Vector(-69.867, -8.7641, 0)), False)
sketch11.addGeometry(Part.LineSegment(App.Vector(-69.867, -8.7641, 0), App.Vector(-66.6312, -9.6312, 0)), False)
sketch11.addConstraint(Sketcher.Constraint("Coincident", 0, 2, 1, 1))
sketch11.addConstraint(Sketcher.Constraint("Coincident", 1, 2, 2, 1))
sketch11.addConstraint(Sketcher.Constraint("Coincident", 2, 2, 3, 1))
sketch11.addConstraint(Sketcher.Constraint("Coincident", 3, 2, 4, 1))
sketch11.addConstraint(Sketcher.Constraint("Coincident", 4, 2, 5, 1))
sketch11.addConstraint(Sketcher.Constraint("Coincident", 5, 2, 0, 1))
sketch11.addConstraint(Sketcher.Constraint("Parallel", 0, 3))
sketch11.addConstraint(Sketcher.Constraint("Parallel", 1, 4))
sketch11.addConstraint(Sketcher.Constraint("Parallel", 2, 5))
sketch11.addConstraint(Sketcher.Constraint("Equal", 0, 1))
sketch11.addConstraint(Sketcher.Constraint("Equal", 1, 2))
sketch11.addConstraint(Sketcher.Constraint("Equal", 2, 3))
sketch11.addConstraint(Sketcher.Constraint("Angle", 0, Q("-74.9988 deg")))
sketch11.addConstraint(Sketcher.Constraint("Angle", 1, Q("-135 deg")))
sketch11.addConstraint(Sketcher.Constraint("Angle", 2, Q("164.9988 deg")))
sketch11.addConstraint(Sketcher.Constraint("Distance", 0, 3.35))
sketch11.addConstraint(Sketcher.Constraint("DistanceX", 0, 2, -1, 1, 65.764))
sketch11.addConstraint(Sketcher.Constraint("DistanceY", 0, 2, -1, 1, 12.867))
pocket7 = body.newObject("PartDesign::Pocket", "Pocket006")
pocket7.Profile = sketch11
pocket7.Length = 1
pocket7.Reversed = True

sketch12 = body.newObject("Sketcher::SketchObject", "Sketch011")
sketch12.AttachmentSupport = (doc.getObject("XZ_Plane"), [""])
sketch12.MapMode = "FlatFace"
sketch12.AttachmentOffset = App.Placement(App.Vector(0, 0, -28.8), App.Rotation())
sketch12.addGeometry(Part.LineSegment(App.Vector(-66.6312, 14.3688, 0), App.Vector(-65.7641, 11.133, 0)), False)
sketch12.addGeometry(Part.LineSegment(App.Vector(-65.7641, 11.133, 0), App.Vector(-68.133, 8.7641, 0)), False)
sketch12.addGeometry(Part.LineSegment(App.Vector(-68.133, 8.7641, 0), App.Vector(-71.3688, 9.6312, 0)), False)
sketch12.addGeometry(Part.LineSegment(App.Vector(-71.3688, 9.6312, 0), App.Vector(-72.2359, 12.867, 0)), False)
sketch12.addGeometry(Part.LineSegment(App.Vector(-72.2359, 12.867, 0), App.Vector(-69.867, 15.2359, 0)), False)
sketch12.addGeometry(Part.LineSegment(App.Vector(-69.867, 15.2359, 0), App.Vector(-66.6312, 14.3688, 0)), False)
sketch12.addConstraint(Sketcher.Constraint("Coincident", 0, 2, 1, 1))
sketch12.addConstraint(Sketcher.Constraint("Coincident", 1, 2, 2, 1))
sketch12.addConstraint(Sketcher.Constraint("Coincident", 2, 2, 3, 1))
sketch12.addConstraint(Sketcher.Constraint("Coincident", 3, 2, 4, 1))
sketch12.addConstraint(Sketcher.Constraint("Coincident", 4, 2, 5, 1))
sketch12.addConstraint(Sketcher.Constraint("Coincident", 5, 2, 0, 1))
sketch12.addConstraint(Sketcher.Constraint("Parallel", 0, 3))
sketch12.addConstraint(Sketcher.Constraint("Parallel", 1, 4))
sketch12.addConstraint(Sketcher.Constraint("Parallel", 2, 5))
sketch12.addConstraint(Sketcher.Constraint("Equal", 0, 1))
sketch12.addConstraint(Sketcher.Constraint("Equal", 1, 2))
sketch12.addConstraint(Sketcher.Constraint("Equal", 2, 3))
sketch12.addConstraint(Sketcher.Constraint("Angle", 0, Q("-74.9988 deg")))
sketch12.addConstraint(Sketcher.Constraint("Angle", 1, Q("-135 deg")))
sketch12.addConstraint(Sketcher.Constraint("Angle", 2, Q("164.9988 deg")))
sketch12.addConstraint(Sketcher.Constraint("Distance", 0, 3.35))
sketch12.addConstraint(Sketcher.Constraint("DistanceX", 0, 2, -1, 1, 65.764))
sketch12.addConstraint(Sketcher.Constraint("DistanceY", -1, 1, 0, 2, 11.133))
pocket8 = body.newObject("PartDesign::Pocket", "Pocket007")
pocket8.Profile = sketch12
pocket8.Length = 1
pocket8.Reversed = True

sketch13 = body.newObject("Sketcher::SketchObject", "Sketch012")
sketch13.AttachmentSupport = (doc.getObject("XZ_Plane"), [""])
sketch13.MapMode = "FlatFace"
sketch13.AttachmentOffset = App.Placement(App.Vector(0, 0, -34), App.Rotation())
sketch13.addGeometry(Part.Circle(App.Vector(-69, -12, 0), App.Vector(0, 0, 1), 1.65), False)
sketch13.addGeometry(Part.Circle(App.Vector(-69, 12, 0), App.Vector(0, 0, 1), 1.65), False)
sketch13.addGeometry(Part.Circle(App.Vector(69, -12, 0), App.Vector(0, 0, 1), 1.65), False)
sketch13.addGeometry(Part.Circle(App.Vector(69, 12, 0), App.Vector(0, 0, 1), 1.65), False)
sketch13.addConstraint(Sketcher.Constraint("Equal", 0, 1))
sketch13.addConstraint(Sketcher.Constraint("Equal", 1, 2))
sketch13.addConstraint(Sketcher.Constraint("Equal", 2, 3))
sketch13.addConstraint(Sketcher.Constraint("Symmetric", 1, 3, 2, 3, -1, 1))
sketch13.addConstraint(Sketcher.Constraint("Symmetric", 0, 3, 3, 3, -1, 1))
sketch13.addConstraint(Sketcher.Constraint("Symmetric", 0, 3, 2, 3, -2))
sketch13.addConstraint(Sketcher.Constraint("Diameter", 0, 3.3))
sketch13.addConstraint(Sketcher.Constraint("DistanceX", 0, 3, -1, 1, 69.0))
sketch13.addConstraint(Sketcher.Constraint("DistanceY", 0, 3, -1, 1, 12.0))
pocket9 = body.newObject("PartDesign::Pocket", "Pocket008")
pocket9.Profile = sketch13
pocket9.Length = 8
pocket9.Reversed = True

sketch14 = body.newObject("Sketcher::SketchObject", "Sketch013")
sketch14.AttachmentSupport = (doc.getObject("XZ_Plane"), [""])
sketch14.MapMode = "FlatFace"
sketch14.AttachmentOffset = App.Placement(App.Vector(0, 0, -34), App.Rotation())
sketch14.addGeometry(Part.ArcOfCircle(Part.Circle(App.Vector(-74.65, 17.65, 0), App.Vector(0, 0, 1), 0.5), math.radians(90), math.radians(180)), False)
sketch14.addGeometry(Part.LineSegment(App.Vector(-74.65, 18.15, 0), App.Vector(74.65, 18.15, 0)), False)
sketch14.addGeometry(Part.ArcOfCircle(Part.Circle(App.Vector(74.65, 17.65, 0), App.Vector(0, 0, 1), 0.5), math.radians(0), math.radians(90)), False)
sketch14.addGeometry(Part.LineSegment(App.Vector(75.15, 17.65, 0), App.Vector(75.15, -17.65, 0)), False)
sketch14.addGeometry(Part.ArcOfCircle(Part.Circle(App.Vector(74.65, -17.65, 0), App.Vector(0, 0, 1), 0.5), math.radians(-90), math.radians(0)), False)
sketch14.addGeometry(Part.LineSegment(App.Vector(74.65, -18.15, 0), App.Vector(-74.65, -18.15, 0)), False)
sketch14.addGeometry(Part.ArcOfCircle(Part.Circle(App.Vector(-74.65, -17.65, 0), App.Vector(0, 0, 1), 0.5), math.radians(180), math.radians(270)), False)
sketch14.addGeometry(Part.LineSegment(App.Vector(-75.15, -17.65, 0), App.Vector(-75.15, 17.65, 0)), False)
sketch14.addConstraint(Sketcher.Constraint("Tangent", 0, 1, 1, 1))
sketch14.addConstraint(Sketcher.Constraint("Tangent", 1, 2, 2, 2))
sketch14.addConstraint(Sketcher.Constraint("Tangent", 2, 1, 3, 1))
sketch14.addConstraint(Sketcher.Constraint("Tangent", 3, 2, 4, 2))
sketch14.addConstraint(Sketcher.Constraint("Tangent", 4, 1, 5, 1))
sketch14.addConstraint(Sketcher.Constraint("Tangent", 5, 2, 6, 2))
sketch14.addConstraint(Sketcher.Constraint("Tangent", 6, 1, 7, 1))
sketch14.addConstraint(Sketcher.Constraint("Tangent", 7, 2, 0, 2))
sketch14.addConstraint(Sketcher.Constraint("Horizontal", 1))
sketch14.addConstraint(Sketcher.Constraint("Vertical", 3))
sketch14.addConstraint(Sketcher.Constraint("Horizontal", 5))
sketch14.addConstraint(Sketcher.Constraint("Vertical", 7))
sketch14.addConstraint(Sketcher.Constraint("Equal", 0, 2))
sketch14.addConstraint(Sketcher.Constraint("Equal", 2, 4))
sketch14.addConstraint(Sketcher.Constraint("Equal", 4, 6))
sketch14.addConstraint(Sketcher.Constraint("Symmetric", 0, 3, 4, 3, -1, 1))
sketch14.addConstraint(Sketcher.Constraint("Radius", 0, 0.5))
sketch14.addConstraint(Sketcher.Constraint("DistanceX", 1, 1, 1, 2, 149.3))
sketch14.addConstraint(Sketcher.Constraint("DistanceY", 3, 2, 3, 1, 35.3))
pocket10 = body.newObject("PartDesign::Pocket", "Pocket009")
pocket10.Profile = sketch14
pocket10.Length = 0.75
pocket10.Reversed = True

doc.recompute()
